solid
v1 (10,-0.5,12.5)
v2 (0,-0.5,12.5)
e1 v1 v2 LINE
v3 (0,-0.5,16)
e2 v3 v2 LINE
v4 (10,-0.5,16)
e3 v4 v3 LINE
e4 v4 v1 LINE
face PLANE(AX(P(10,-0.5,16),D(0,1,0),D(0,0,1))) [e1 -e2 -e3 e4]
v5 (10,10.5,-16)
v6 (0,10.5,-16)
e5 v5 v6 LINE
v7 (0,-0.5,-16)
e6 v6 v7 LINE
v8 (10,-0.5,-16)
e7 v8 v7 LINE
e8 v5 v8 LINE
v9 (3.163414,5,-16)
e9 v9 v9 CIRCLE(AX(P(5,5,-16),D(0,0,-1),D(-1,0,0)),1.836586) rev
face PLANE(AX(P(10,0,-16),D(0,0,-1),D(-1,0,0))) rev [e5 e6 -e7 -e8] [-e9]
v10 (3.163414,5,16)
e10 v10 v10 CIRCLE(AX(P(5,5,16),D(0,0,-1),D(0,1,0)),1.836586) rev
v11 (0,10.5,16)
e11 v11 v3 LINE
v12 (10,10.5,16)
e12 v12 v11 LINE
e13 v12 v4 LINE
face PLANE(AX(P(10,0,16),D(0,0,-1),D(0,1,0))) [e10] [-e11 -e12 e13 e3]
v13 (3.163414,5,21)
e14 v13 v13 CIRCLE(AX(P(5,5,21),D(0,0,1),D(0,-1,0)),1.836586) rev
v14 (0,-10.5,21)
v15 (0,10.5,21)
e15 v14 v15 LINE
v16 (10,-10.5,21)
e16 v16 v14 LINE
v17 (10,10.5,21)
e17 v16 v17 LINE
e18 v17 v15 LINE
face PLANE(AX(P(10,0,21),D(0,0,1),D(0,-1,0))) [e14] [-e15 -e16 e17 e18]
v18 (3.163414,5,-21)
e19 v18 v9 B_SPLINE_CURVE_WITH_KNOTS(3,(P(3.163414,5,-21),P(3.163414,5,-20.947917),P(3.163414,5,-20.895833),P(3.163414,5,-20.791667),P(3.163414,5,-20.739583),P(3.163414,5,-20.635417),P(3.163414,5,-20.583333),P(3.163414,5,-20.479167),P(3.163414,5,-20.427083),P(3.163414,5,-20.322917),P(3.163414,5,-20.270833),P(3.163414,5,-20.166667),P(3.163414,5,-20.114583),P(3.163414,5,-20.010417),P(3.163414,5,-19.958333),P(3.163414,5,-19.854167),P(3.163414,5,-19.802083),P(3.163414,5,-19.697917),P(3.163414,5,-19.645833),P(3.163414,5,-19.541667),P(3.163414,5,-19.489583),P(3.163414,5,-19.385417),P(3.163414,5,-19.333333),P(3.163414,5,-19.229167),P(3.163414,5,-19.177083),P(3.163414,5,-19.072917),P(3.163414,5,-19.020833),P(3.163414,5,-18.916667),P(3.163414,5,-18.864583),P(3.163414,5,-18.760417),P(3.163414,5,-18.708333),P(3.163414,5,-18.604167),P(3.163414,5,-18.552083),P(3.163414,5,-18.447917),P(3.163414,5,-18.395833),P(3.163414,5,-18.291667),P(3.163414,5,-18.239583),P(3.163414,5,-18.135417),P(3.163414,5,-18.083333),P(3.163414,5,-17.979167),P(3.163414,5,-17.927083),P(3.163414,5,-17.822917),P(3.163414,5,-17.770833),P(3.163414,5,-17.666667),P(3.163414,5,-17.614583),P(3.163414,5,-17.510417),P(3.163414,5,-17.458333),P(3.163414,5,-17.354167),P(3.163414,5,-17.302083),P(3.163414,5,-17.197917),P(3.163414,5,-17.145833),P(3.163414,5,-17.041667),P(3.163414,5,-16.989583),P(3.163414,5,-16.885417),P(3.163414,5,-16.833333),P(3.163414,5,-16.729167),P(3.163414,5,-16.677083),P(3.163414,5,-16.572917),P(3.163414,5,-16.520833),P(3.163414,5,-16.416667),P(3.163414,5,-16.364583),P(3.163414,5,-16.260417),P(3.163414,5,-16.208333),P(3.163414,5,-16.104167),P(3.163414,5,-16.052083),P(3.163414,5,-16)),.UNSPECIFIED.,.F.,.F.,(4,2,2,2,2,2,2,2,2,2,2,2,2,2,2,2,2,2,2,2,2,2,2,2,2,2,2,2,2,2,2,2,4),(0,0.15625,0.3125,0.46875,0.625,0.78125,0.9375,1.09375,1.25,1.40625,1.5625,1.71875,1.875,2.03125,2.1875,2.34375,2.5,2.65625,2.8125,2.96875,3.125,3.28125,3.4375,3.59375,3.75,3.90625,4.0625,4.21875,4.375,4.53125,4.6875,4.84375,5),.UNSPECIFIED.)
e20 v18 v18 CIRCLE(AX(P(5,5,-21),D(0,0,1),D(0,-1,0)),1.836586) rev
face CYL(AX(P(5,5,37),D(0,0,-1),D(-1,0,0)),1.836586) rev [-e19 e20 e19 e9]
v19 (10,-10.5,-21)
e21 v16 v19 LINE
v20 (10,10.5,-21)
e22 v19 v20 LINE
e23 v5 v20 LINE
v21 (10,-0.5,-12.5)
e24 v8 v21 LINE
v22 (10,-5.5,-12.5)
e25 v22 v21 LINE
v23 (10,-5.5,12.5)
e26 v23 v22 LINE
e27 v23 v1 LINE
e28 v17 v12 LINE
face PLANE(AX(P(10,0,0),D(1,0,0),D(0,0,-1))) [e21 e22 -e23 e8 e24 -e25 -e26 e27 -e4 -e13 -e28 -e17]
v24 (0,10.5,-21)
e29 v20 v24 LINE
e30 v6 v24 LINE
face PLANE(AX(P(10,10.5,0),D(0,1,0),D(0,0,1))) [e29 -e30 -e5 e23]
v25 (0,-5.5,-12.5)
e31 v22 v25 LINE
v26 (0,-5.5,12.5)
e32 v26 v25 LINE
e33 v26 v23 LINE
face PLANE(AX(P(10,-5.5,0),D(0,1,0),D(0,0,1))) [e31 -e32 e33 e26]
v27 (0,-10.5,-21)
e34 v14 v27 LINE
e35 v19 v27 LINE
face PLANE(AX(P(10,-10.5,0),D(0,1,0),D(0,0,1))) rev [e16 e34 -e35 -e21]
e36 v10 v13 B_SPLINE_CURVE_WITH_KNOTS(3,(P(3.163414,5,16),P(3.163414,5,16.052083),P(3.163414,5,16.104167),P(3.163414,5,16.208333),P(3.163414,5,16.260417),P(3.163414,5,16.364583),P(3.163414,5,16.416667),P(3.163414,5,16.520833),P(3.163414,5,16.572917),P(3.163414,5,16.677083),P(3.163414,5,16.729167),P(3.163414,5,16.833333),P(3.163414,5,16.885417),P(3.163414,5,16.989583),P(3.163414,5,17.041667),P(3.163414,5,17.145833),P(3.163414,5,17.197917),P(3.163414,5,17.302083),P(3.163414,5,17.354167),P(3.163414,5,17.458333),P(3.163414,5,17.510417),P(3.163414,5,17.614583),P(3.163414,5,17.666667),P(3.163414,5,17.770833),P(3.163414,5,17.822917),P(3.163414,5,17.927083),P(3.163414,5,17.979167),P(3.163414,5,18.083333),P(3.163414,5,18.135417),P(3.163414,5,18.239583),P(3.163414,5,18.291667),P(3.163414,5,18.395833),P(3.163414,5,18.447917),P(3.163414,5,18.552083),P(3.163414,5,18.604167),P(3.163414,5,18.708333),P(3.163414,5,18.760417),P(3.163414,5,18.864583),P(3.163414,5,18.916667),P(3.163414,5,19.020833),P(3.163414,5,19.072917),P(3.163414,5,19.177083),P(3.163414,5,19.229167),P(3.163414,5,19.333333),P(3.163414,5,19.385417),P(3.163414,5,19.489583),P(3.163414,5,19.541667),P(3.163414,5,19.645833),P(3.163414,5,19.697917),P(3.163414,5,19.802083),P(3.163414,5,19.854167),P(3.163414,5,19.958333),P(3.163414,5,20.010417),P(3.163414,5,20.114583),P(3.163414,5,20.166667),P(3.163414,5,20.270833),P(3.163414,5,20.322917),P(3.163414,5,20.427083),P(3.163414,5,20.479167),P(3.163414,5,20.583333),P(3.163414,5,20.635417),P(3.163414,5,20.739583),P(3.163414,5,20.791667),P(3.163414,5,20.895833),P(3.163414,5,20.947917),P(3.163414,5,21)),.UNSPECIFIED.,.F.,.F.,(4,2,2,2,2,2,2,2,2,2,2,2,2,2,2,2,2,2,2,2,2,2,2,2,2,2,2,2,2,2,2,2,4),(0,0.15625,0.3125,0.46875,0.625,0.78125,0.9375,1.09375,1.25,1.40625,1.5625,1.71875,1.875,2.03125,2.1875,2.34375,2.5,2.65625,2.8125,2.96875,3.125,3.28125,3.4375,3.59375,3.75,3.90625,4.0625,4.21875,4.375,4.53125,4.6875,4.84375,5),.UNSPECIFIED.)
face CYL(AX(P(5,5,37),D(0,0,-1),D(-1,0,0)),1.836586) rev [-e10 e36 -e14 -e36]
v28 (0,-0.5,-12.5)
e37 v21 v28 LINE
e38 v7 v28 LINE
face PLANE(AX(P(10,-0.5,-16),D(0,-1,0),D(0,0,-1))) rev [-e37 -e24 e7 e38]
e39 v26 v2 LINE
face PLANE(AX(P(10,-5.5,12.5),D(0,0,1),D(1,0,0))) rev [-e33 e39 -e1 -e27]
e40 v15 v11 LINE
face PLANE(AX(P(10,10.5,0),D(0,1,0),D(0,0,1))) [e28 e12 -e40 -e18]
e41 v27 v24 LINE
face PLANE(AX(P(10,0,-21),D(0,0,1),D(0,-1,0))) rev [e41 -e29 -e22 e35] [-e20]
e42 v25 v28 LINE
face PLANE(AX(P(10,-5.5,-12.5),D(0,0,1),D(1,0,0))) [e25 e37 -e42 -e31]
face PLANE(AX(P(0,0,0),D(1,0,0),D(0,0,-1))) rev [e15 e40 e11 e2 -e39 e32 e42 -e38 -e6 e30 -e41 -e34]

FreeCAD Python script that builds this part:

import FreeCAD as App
import Part
import Sketcher
Q = App.Units.Quantity


def add_polygon(sketch, points):
    """Adds a closed chain of lines whose ends are joined by coincident constraints."""
    first, n = sketch.GeometryCount, len(points)
    for a, b in zip(points, points[1:] + points[:1]):
        sketch.addGeometry(Part.LineSegment(App.Vector(*a, 0), App.Vector(*b, 0)), False)
    for i in range(n):
        sketch.addConstraint(Sketcher.Constraint("Coincident", first + i, 2, first + (i + 1) % n, 1))

doc = App.newDocument("Part")
body = doc.addObject("PartDesign::Body", "Body")

sketch1 = body.newObject("Sketcher::SketchObject", "Sketch")
sketch1.AttachmentSupport = (doc.getObject("YZ_Plane"), [""])
sketch1.MapMode = "FlatFace"
add_polygon(sketch1, [(10.5, 21), (-10.5, 21), (-10.5, -21), (10.5, -21), (10.5, -16), (-0.5, -16), (-0.5, -12.5), (-5.5, -12.5), (-5.5, 12.5), (-0.5, 12.5), (-0.5, 16), (10.5, 16)])
sketch1.addConstraint(Sketcher.Constraint("Horizontal", 0))
sketch1.addConstraint(Sketcher.Constraint("Vertical", 1))
sketch1.addConstraint(Sketcher.Constraint("Horizontal", 2))
sketch1.addConstraint(Sketcher.Constraint("Vertical", 3))
sketch1.addConstraint(Sketcher.Constraint("Horizontal", 4))
sketch1.addConstraint(Sketcher.Constraint("Vertical", 5))
sketch1.addConstraint(Sketcher.Constraint("Horizontal", 6))
sketch1.addConstraint(Sketcher.Constraint("Vertical", 7))
sketch1.addConstraint(Sketcher.Constraint("Horizontal", 8))
sketch1.addConstraint(Sketcher.Constraint("Vertical", 9))
sketch1.addConstraint(Sketcher.Constraint("Horizontal", 10))
sketch1.addConstraint(Sketcher.Constraint("Vertical", 11))
sketch1.addConstraint(Sketcher.Constraint("Symmetric", 0, 2, 2, 2, -1, 1))
sketch1.addConstraint(Sketcher.Constraint("Symmetric", 5, 2, 8, 2, -1))
sketch1.addConstraint(Sketcher.Constraint("Symmetric", 3, 2, 10, 2, -1))
sketch1.addConstraint(Sketcher.Constraint("Equal", 8, 3))
sketch1.addConstraint(Sketcher.Constraint("DistanceX", 0, 2, 0, 1, Q("21 mm")))
sketch1.addConstraint(Sketcher.Constraint("DistanceX", 4, 2, 4, 1, Q("11 mm")))
sketch1.addConstraint(Sketcher.Constraint("DistanceX", 6, 2, 6, 1, Q("5 mm")))
sketch1.addConstraint(Sketcher.Constraint("DistanceY", 1, 2, 1, 1, Q("42 mm")))
sketch1.addConstraint(Sketcher.Constraint("DistanceY", 7, 1, 7, 2, Q("25 mm")))
pad1 = body.newObject("PartDesign::Pad", "Pad")
pad1.Profile = sketch1
pad1.Length = 10

sketch2 = body.newObject("Sketcher::SketchObject", "Sketch001")
sketch2.AttachmentSupport = (doc.getObject("XY_Plane"), [""])
sketch2.MapMode = "FlatFace"
sketch2.AttachmentOffset = App.Placement(App.Vector(0, 0, -16), App.Rotation())
sketch2.addGeometry(Part.Circle(App.Vector(5, 5, 0), App.Vector(0, 0, 1), 1.8), False)
sketch2.addConstraint(Sketcher.Constraint("DistanceX", -1, 1, 0, 3, Q("5 mm")))
sketch2.addConstraint(Sketcher.Constraint("DistanceY", -1, 1, 0, 3, Q("5 mm")))
sketch2.addConstraint(Sketcher.Constraint("Diameter", 0, Q("3.673172 mm")))
pocket1 = body.newObject("PartDesign::Pocket", "Pocket")
pocket1.Profile = sketch2
pocket1.Type = "ThroughAll"
pocket1.Midplane = True

doc.recompute()
